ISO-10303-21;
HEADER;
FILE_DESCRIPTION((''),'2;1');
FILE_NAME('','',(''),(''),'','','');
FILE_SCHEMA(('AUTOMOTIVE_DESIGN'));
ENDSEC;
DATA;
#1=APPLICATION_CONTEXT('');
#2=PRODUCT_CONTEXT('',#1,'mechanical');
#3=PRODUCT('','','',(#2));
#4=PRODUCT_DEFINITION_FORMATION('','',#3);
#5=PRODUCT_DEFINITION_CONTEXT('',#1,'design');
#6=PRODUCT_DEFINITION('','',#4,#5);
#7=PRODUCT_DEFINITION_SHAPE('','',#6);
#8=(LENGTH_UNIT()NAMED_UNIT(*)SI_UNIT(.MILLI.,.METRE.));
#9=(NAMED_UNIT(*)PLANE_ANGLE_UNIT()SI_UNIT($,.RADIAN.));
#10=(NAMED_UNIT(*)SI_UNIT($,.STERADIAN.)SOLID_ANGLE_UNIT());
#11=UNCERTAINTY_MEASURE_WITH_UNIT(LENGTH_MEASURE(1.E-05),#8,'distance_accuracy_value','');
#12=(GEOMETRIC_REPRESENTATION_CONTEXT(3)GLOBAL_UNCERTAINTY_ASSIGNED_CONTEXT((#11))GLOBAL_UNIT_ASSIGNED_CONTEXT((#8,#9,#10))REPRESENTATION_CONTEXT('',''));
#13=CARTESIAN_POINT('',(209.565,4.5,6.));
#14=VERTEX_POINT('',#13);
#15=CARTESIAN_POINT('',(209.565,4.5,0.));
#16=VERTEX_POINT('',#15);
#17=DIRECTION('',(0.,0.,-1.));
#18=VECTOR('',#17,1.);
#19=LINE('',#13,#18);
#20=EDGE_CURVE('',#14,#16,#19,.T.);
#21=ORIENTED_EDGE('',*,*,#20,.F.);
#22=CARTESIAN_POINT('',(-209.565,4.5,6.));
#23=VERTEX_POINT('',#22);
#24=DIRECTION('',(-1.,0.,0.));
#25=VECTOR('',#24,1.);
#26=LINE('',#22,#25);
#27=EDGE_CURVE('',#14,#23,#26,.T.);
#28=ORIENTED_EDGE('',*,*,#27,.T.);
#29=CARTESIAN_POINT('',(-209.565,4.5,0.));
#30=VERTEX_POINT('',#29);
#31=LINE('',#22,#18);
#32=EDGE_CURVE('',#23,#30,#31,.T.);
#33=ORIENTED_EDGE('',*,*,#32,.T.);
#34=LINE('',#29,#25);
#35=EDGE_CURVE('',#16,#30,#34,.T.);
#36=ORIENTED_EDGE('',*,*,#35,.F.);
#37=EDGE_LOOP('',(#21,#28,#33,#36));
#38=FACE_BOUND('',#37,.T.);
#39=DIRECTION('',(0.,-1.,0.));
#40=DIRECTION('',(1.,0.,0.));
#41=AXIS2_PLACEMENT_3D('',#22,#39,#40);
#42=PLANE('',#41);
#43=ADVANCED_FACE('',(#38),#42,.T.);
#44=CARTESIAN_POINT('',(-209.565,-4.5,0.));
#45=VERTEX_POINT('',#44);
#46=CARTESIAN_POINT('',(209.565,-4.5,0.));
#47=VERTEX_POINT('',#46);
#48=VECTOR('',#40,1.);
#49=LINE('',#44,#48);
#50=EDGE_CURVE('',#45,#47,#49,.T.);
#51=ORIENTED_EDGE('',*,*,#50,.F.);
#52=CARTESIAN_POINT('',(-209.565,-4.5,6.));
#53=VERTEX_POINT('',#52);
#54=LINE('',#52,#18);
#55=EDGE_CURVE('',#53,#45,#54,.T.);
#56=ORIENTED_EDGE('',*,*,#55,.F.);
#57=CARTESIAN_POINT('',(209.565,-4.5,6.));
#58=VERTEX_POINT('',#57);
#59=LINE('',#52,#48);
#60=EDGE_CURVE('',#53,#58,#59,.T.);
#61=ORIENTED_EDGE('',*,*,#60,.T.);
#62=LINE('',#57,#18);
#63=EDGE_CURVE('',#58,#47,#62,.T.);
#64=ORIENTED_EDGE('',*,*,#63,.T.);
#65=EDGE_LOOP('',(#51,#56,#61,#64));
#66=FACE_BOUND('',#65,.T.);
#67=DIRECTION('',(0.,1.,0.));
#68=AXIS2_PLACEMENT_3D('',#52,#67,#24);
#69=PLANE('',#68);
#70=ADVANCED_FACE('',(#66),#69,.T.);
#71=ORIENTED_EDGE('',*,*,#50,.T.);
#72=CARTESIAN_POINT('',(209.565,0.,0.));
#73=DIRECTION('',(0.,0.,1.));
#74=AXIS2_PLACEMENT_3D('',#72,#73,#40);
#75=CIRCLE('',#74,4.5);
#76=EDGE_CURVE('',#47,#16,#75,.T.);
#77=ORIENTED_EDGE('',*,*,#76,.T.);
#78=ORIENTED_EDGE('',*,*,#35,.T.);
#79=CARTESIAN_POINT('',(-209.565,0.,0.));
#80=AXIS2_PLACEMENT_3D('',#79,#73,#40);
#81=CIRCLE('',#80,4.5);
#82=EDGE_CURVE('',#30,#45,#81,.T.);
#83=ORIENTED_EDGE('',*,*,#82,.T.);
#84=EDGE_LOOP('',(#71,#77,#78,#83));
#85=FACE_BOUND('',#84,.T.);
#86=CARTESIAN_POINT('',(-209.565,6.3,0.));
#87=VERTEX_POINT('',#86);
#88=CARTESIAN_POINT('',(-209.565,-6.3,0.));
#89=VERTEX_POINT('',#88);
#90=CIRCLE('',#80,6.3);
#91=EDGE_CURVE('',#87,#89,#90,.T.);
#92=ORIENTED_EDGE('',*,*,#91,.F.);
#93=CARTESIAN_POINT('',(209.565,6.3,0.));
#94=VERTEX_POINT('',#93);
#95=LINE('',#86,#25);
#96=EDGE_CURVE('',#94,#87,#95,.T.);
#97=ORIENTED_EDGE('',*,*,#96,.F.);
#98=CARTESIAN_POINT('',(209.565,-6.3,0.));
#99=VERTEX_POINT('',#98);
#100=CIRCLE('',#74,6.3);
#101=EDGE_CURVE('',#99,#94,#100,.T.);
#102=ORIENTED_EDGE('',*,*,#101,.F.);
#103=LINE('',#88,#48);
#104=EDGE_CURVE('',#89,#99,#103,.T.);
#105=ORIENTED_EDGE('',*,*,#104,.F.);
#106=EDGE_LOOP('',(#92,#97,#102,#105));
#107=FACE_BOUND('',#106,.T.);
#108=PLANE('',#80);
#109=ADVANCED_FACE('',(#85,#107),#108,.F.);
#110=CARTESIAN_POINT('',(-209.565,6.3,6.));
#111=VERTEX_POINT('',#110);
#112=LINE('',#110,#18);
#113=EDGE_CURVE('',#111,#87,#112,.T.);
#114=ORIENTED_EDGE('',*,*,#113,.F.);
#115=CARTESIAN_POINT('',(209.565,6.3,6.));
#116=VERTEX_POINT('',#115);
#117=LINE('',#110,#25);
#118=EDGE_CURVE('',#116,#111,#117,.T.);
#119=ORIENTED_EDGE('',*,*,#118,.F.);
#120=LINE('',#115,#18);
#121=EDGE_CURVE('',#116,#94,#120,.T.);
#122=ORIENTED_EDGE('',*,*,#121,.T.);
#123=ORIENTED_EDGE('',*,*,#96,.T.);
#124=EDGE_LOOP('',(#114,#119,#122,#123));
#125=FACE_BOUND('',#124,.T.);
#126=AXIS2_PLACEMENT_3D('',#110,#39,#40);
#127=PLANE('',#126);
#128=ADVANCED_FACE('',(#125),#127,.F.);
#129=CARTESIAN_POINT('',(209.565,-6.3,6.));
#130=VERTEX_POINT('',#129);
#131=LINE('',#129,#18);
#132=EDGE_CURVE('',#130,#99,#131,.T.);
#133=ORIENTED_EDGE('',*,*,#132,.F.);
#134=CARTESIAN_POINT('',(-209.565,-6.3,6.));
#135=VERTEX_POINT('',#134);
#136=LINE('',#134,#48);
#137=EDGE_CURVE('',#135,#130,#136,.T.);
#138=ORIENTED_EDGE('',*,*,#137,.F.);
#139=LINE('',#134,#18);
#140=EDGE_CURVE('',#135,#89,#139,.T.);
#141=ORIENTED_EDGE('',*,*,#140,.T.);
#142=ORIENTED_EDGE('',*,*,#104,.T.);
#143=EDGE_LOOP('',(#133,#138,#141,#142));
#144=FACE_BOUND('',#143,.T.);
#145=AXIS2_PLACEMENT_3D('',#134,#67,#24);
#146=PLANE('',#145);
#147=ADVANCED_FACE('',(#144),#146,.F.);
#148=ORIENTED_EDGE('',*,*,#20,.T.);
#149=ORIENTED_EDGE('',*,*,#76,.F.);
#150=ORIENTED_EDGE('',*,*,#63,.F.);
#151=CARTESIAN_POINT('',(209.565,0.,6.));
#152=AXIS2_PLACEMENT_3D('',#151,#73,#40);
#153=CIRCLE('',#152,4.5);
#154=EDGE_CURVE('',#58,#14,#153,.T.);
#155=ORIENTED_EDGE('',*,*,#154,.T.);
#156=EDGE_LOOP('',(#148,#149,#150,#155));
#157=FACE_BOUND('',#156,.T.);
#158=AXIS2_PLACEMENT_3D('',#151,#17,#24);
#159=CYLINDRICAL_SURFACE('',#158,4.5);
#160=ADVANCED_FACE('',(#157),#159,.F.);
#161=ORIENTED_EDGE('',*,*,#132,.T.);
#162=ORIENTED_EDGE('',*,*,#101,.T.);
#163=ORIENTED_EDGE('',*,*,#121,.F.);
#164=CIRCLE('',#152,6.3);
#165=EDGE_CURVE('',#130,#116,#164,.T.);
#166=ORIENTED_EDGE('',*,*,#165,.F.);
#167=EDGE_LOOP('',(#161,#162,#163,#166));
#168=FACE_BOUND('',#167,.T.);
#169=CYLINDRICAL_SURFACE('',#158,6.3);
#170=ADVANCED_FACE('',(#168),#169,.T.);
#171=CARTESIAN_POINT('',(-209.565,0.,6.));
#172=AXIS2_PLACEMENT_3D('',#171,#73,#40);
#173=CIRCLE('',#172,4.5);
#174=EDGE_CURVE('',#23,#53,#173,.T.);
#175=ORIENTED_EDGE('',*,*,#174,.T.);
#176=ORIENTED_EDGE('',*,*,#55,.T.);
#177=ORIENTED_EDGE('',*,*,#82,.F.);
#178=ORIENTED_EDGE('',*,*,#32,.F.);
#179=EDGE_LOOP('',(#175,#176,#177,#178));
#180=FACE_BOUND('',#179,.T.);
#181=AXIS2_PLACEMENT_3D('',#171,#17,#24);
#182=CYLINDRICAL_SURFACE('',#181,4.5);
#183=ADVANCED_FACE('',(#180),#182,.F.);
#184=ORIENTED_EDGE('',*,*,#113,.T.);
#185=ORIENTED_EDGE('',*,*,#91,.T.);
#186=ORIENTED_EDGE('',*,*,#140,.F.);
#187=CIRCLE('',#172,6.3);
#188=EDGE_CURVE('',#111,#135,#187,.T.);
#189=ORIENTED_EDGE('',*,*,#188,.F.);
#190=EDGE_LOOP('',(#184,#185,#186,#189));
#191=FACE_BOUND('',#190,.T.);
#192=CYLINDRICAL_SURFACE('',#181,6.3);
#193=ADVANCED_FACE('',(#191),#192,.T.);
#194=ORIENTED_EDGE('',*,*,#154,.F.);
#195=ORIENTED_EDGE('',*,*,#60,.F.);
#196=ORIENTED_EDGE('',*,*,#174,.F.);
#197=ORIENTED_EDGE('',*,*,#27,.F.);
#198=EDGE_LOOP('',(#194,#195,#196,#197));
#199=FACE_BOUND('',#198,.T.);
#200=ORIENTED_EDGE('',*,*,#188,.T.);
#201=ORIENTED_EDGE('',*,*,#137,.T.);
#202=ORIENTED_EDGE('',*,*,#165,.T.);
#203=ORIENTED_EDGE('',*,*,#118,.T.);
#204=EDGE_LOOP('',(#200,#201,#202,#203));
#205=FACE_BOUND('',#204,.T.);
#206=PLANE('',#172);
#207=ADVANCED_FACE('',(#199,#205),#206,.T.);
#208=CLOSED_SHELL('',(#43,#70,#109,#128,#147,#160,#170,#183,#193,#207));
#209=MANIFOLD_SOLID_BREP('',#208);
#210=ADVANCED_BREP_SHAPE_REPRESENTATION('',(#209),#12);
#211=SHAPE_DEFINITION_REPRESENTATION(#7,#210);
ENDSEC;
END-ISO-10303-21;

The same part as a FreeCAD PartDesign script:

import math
import FreeCAD as App
import Part
import Sketcher
from FreeCAD import Vector

doc = App.newDocument("Part")
body = doc.addObject("PartDesign::Body", "Body")

# Sketch on XY plane
sketch1 = body.newObject("Sketcher::SketchObject", "Sketch")
sketch1.AttachmentSupport = (doc.getObject("XY_Plane"), [""])
sketch1.MapMode = "FlatFace"
sketch1.addGeometry([
    Part.LineSegment(Vector(-209.565, -6.3, 0), Vector(209.565, -6.3, 0)),  # 0
    Part.ArcOfCircle(Part.Circle(Vector(209.565, 0, 0), Vector(0, 0, 1), 6.3), math.radians(-90), math.radians(90)),  # 1
    Part.LineSegment(Vector(209.565, 6.3, 0), Vector(-209.565, 6.3, 0)),  # 2
    Part.ArcOfCircle(Part.Circle(Vector(-209.565, 0, 0), Vector(0, 0, 1), 6.3), math.radians(90), math.radians(270)),  # 3
    Part.LineSegment(Vector(209.565, -4.5, 0), Vector(-209.565, -4.5, 0)),  # 4
    Part.ArcOfCircle(Part.Circle(Vector(-209.565, 0, 0), Vector(0, 0, 1), 4.5), math.radians(90), math.radians(270)),  # 5
    Part.LineSegment(Vector(-209.565, 4.5, 0), Vector(209.565, 4.5, 0)),  # 6
    Part.ArcOfCircle(Part.Circle(Vector(209.565, 0, 0), Vector(0, 0, 1), 4.5), math.radians(-90), math.radians(90)),  # 7
], False)
sketch1.addConstraint([
    Sketcher.Constraint("Tangent", 0, 2, 1, 1),
    Sketcher.Constraint("Tangent", 1, 2, 2, 1),
    Sketcher.Constraint("Tangent", 2, 2, 3, 1),
    Sketcher.Constraint("Tangent", 3, 2, 0, 1),
    Sketcher.Constraint("Tangent", 4, 2, 5, 2),
    Sketcher.Constraint("Tangent", 5, 1, 6, 1),
    Sketcher.Constraint("Tangent", 6, 2, 7, 2),
    Sketcher.Constraint("Tangent", 7, 1, 4, 1),
    Sketcher.Constraint("Horizontal", 0),
    Sketcher.Constraint("Horizontal", 2),
    Sketcher.Constraint("Horizontal", 4),
    Sketcher.Constraint("Horizontal", 6),
    Sketcher.Constraint("Coincident", 5, 3, 3, 3),
    Sketcher.Constraint("Symmetric", 1, 3, 3, 3, -1, 1),
    Sketcher.Constraint("Vertical", 7, 3, 0, 2),
    Sketcher.Constraint("Radius", 1, 6.3),
    Sketcher.Constraint("Radius", 5, 4.5),
    Sketcher.Constraint("DistanceX", 0, 1, 0, 2, 419.13),
])
pad1 = body.newObject("PartDesign::Pad", "Pad")
pad1.Profile = sketch1
pad1.Length = 6

doc.recompute()
